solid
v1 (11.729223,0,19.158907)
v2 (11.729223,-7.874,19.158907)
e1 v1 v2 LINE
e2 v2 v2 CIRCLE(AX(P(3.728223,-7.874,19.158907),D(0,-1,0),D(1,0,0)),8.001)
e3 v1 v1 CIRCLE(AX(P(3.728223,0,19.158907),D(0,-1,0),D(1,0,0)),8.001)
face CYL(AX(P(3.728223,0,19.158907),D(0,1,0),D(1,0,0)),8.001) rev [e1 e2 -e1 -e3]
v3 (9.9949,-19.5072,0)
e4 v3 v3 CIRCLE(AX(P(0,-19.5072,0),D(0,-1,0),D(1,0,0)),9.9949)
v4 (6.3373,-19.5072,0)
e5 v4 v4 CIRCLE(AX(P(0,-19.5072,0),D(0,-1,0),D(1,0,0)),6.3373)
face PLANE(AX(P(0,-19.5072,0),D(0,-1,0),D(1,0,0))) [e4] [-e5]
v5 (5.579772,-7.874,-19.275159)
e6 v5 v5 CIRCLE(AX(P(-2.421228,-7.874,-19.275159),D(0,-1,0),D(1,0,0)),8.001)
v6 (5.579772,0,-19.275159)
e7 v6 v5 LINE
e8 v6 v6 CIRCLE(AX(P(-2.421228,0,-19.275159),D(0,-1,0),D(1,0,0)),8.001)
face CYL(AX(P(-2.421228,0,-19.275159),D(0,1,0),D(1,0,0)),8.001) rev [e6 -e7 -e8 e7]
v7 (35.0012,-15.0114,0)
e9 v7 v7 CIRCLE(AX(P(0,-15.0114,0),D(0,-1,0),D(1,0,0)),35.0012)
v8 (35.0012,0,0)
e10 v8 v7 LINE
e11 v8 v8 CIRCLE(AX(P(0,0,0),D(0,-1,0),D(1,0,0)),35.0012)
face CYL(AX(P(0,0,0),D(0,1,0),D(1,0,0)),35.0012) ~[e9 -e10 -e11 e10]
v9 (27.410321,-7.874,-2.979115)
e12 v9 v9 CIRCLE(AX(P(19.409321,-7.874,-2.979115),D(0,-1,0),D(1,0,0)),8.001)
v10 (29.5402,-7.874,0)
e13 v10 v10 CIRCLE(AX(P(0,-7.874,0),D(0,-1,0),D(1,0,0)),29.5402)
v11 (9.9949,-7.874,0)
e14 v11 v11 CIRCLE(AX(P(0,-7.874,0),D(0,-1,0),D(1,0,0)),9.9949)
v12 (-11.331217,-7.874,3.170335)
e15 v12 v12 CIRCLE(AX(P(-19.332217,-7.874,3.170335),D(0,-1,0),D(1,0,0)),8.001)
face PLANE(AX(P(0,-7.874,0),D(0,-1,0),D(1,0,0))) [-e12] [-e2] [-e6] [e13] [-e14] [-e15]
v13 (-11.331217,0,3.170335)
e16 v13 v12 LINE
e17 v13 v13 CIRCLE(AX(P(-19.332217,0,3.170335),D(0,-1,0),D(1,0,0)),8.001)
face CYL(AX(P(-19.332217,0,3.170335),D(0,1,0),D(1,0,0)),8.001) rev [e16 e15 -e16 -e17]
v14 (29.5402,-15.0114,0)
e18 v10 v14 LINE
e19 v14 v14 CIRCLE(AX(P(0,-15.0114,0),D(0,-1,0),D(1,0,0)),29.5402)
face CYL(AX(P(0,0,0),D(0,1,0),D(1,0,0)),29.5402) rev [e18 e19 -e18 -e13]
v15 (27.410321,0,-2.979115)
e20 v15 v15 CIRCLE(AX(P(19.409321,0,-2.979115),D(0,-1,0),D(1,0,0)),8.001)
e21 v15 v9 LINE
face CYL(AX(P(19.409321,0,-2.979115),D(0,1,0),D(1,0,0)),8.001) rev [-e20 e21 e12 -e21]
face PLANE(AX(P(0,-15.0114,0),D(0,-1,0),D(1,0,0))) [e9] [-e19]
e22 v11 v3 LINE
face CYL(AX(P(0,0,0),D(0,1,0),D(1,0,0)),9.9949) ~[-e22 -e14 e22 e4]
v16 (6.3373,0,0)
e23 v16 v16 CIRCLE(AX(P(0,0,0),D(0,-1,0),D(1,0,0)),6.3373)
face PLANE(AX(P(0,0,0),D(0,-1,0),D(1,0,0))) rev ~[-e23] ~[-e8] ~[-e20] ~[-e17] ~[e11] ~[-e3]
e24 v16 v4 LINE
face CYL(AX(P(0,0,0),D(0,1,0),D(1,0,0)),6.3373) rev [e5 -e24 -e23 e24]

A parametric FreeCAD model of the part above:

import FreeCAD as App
import Part
import Sketcher

V = App.Vector
Q = App.Units.Quantity

doc = App.newDocument("Part")
body = doc.addObject("PartDesign::Body", "Body")

sketch1 = body.newObject("Sketcher::SketchObject", "Sketch")
sketch1.AttachmentSupport = (doc.getObject("XZ_Plane"), [""])
sketch1.MapMode = "FlatFace"
sketch1.addGeometry([
    Part.Circle(V(0, 0, 0), V(0, 0, 1), 10),
    Part.Circle(V(0, 0, 0), V(0, 0, 1), 6),
], False)
sketch1.addConstraint([
    Sketcher.Constraint("Coincident", 0, 3, -1, 1),
    Sketcher.Constraint("Coincident", 1, 3, -1, 1),
    Sketcher.Constraint("Diameter", 0, Q("0.787 in")),
    Sketcher.Constraint("Diameter", 1, Q("0.499 in")),
])
pad1 = body.newObject("PartDesign::Pad", "Pad")
pad1.Profile = sketch1
pad1.Length = Q("0.768 in")

sketch2 = body.newObject("Sketcher::SketchObject", "Sketch001")
sketch2.AttachmentSupport = (doc.getObject("XZ_Plane"), [""])
sketch2.MapMode = "FlatFace"
sketch2.addGeometry([
    Part.Circle(V(0, 0, 0), V(0, 0, 1), 30),
    Part.Circle(V(-2, -19, 0), V(0, 0, 1), 8),
    Part.Circle(V(19, -3, 0), V(0, 0, 1), 8),
    Part.Circle(V(-19, 3, 0), V(0, 0, 1), 8),
    Part.Circle(V(0, 0, 0), V(0, 0, 1), 10),
    Part.Circle(V(4, 19, 0), V(0, 0, 1), 8),
], False)
sketch2.addConstraint([
    Sketcher.Constraint("Coincident", 0, 3, -1, 1),
    Sketcher.Constraint("Coincident", 4, 3, -1, 1),
    Sketcher.Constraint("Equal", 1, 2),
    Sketcher.Constraint("Equal", 2, 3),
    Sketcher.Constraint("Equal", 3, 5),
    Sketcher.Constraint("Diameter", 1, Q("0.63 in")),
    Sketcher.Constraint("Diameter", 0, Q("2.326 in")),
    Sketcher.Constraint("Diameter", 4, Q("0.787 in")),
    Sketcher.Constraint("DistanceX", 1, 3, -1, 1, Q("2.421228 mm")),
    Sketcher.Constraint("DistanceY", 1, 3, -1, 1, Q("19.275159 mm")),
    Sketcher.Constraint("DistanceX", -1, 1, 2, 3, Q("19.409321 mm")),
    Sketcher.Constraint("DistanceX", 3, 3, 1, 3, Q("16.910989 mm")),
    Sketcher.Constraint("DistanceY", 2, 3, 3, 3, Q("6.14945 mm")),
    Sketcher.Constraint("DistanceY", 2, 3, 5, 3, Q("22.138022 mm")),
    Sketcher.Constraint("DistanceX", 3, 3, 5, 3, Q("23.06044 mm")),
    Sketcher.Constraint("DistanceY", 2, 3, -1, 1, Q("2.979115 mm")),
])
pad2 = body.newObject("PartDesign::Pad", "Pad001")
pad2.Profile = sketch2
pad2.Length = Q("0.31 in")

sketch3 = body.newObject("Sketcher::SketchObject", "Sketch002")
sketch3.AttachmentSupport = (doc.getObject("XZ_Plane"), [""])
sketch3.MapMode = "FlatFace"
sketch3.addGeometry([
    Part.Circle(V(0, 0, 0), V(0, 0, 1), 35),
    Part.Circle(V(0, 0, 0), V(0, 0, 1), 30),
], False)
sketch3.addConstraint([
    Sketcher.Constraint("Coincident", 0, 3, -1, 1),
    Sketcher.Constraint("Coincident", 1, 3, -1, 1),
    Sketcher.Constraint("Diameter", 0, Q("2.756 in")),
    Sketcher.Constraint("Diameter", 1, Q("2.326 in")),
])
pad3 = body.newObject("PartDesign::Pad", "Pad002")
pad3.Profile = sketch3
pad3.Length = Q("0.591 in")

doc.recompute()
